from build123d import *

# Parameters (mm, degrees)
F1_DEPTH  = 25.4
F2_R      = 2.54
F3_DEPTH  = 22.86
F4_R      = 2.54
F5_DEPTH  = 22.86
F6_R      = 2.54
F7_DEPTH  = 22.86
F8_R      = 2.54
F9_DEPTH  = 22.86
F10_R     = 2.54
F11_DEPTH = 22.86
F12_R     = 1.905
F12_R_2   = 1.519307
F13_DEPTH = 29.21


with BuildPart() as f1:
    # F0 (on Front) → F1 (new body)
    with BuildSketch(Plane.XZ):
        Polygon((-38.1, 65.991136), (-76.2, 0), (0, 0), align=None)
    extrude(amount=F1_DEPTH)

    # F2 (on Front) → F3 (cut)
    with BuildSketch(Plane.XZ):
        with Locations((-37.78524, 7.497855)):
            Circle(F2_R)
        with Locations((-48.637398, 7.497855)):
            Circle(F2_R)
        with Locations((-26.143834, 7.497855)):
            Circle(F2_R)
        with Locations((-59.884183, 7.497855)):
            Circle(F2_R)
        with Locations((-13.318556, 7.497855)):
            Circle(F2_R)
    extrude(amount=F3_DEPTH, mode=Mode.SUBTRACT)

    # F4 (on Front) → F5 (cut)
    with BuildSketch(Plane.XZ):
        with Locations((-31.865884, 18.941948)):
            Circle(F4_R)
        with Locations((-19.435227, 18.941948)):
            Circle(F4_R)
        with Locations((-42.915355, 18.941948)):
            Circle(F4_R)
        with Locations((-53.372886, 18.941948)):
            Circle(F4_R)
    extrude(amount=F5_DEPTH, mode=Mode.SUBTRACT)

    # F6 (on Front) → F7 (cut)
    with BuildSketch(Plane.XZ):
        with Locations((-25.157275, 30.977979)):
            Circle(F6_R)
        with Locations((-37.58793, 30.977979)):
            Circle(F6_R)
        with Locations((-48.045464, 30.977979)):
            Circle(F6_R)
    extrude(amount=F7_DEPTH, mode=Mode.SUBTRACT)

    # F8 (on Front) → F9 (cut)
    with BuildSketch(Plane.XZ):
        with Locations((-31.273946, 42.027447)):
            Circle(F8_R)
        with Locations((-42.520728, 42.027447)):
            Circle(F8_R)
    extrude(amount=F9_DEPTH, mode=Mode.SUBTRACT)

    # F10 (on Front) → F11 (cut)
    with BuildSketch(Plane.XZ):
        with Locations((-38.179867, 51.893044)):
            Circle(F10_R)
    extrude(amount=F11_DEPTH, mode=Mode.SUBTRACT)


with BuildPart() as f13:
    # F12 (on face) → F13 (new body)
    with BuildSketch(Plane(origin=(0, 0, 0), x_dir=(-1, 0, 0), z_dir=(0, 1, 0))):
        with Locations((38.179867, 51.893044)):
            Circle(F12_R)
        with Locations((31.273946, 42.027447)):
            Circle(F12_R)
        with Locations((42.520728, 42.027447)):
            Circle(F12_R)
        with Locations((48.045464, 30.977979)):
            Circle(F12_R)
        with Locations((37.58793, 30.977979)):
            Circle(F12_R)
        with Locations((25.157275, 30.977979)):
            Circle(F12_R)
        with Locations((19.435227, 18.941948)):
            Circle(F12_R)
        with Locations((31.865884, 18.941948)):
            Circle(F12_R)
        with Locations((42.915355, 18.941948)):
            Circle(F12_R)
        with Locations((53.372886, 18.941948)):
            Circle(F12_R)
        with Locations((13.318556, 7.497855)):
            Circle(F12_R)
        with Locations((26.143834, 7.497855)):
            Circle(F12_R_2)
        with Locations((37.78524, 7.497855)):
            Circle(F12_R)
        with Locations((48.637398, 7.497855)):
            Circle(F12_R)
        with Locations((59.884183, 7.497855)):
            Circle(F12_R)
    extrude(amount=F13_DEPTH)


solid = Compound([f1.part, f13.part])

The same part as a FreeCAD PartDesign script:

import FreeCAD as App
import Part
import Sketcher

V = App.Vector
Q = App.Units.Quantity


def add_polygon(sketch, points):
    """Adds a closed chain of lines whose ends are joined by coincident constraints."""
    first, n = sketch.GeometryCount, len(points)
    for a, b in zip(points, points[1:] + points[:1]):
        sketch.addGeometry(Part.LineSegment(App.Vector(*a, 0), App.Vector(*b, 0)), False)
    for i in range(n):
        sketch.addConstraint(Sketcher.Constraint("Coincident", first + i, 2, first + (i + 1) % n, 1))

doc = App.newDocument("Part")
params = doc.addObject("Spreadsheet::Sheet", "Params")
for row, (alias, value) in enumerate([
    ("sketch1_width", "3 in"),
    ("sketch1_length", "3 in"),
    ("pad1_length", "1 in"),
    ("sketch2_diameter", "0.2 in"),
    ("pocket1_length", "0.9 in"),
    ("sketch3_diameter", "0.2 in"),
    ("pocket2_length", "0.9 in"),
    ("sketch4_diameter", "0.2 in"),
    ("pocket3_length", "0.9 in"),
    ("sketch5_diameter", "0.2 in"),
    ("pocket4_length", "0.9 in"),
    ("sketch6_diameter", "0.2 in"),
    ("pocket5_length", "0.9 in"),
    ("sketch7_diameter", "0.15 in"),
    ("pad2_length", "1.15 in"),
], start=1):
    params.set(f"A{row}", alias)
    params.set(f"B{row}", "=" + value)
    params.setAlias(f"B{row}", alias)

body = doc.addObject("PartDesign::Body", "Body")

# Sketch on XZ plane
sketch1 = doc.addObject("Sketcher::SketchObject", "Sketch")
body.addObject(sketch1)
sketch1.AttachmentSupport = (doc.XZ_Plane, [""])
sketch1.MapMode = "FlatFace"
add_polygon(sketch1, [(-38, 66), (-76, 0), (0, 0)])  # lines 0-2
sketch1.addConstraint([
    Sketcher.Constraint("Horizontal", 1),
    Sketcher.Constraint("Coincident", 1, 2, -1, 1),
    Sketcher.Constraint("Equal", 0, 2),
    Sketcher.Constraint("DistanceX", 1, 1, 1, 2, Q("3 in")),
    Sketcher.Constraint("Distance", 0, Q("3 in")),
])
sketch1.setExpression("Constraints[6]", "Params.sketch1_width")
sketch1.setExpression("Constraints[7]", "Params.sketch1_length")
pad1 = doc.addObject("PartDesign::Pad", "Pad")
body.addObject(pad1)
pad1.Profile = sketch1
pad1.setExpression("Length", "Params.pad1_length")

# Sketch on XZ plane
sketch2 = doc.addObject("Sketcher::SketchObject", "Sketch001")
body.addObject(sketch2)
sketch2.AttachmentSupport = (doc.XZ_Plane, [""])
sketch2.MapMode = "FlatFace"
sketch2.addGeometry([
    Part.Circle(V(-37.8, 7.5, 0), V(0, 0, 1), 2.5),  # 0
    Part.Circle(V(-48.6, 7.5, 0), V(0, 0, 1), 2.5),  # 1
    Part.Circle(V(-26.1, 7.5, 0), V(0, 0, 1), 2.5),  # 2
    Part.Circle(V(-59.9, 7.5, 0), V(0, 0, 1), 2.5),  # 3
    Part.Circle(V(-13.3, 7.5, 0), V(0, 0, 1), 2.5),  # 4
], False)
sketch2.addConstraint([
    Sketcher.Constraint("Equal", 0, 1),
    Sketcher.Constraint("Equal", 1, 2),
    Sketcher.Constraint("Equal", 2, 3),
    Sketcher.Constraint("Equal", 3, 4),
    Sketcher.Constraint("Horizontal", 0, 3, 1, 3),
    Sketcher.Constraint("Horizontal", 1, 3, 2, 3),
    Sketcher.Constraint("Horizontal", 2, 3, 3, 3),
    Sketcher.Constraint("Horizontal", 3, 3, 4, 3),
    Sketcher.Constraint("Diameter", 0, Q("0.2 in")),
    Sketcher.Constraint("DistanceX", 0, 3, -1, 1, 37.78524),
    Sketcher.Constraint("DistanceX", 3, 3, 2, 3, 33.740349),
    Sketcher.Constraint("DistanceX", 1, 3, 4, 3, 35.318842),
    Sketcher.Constraint("DistanceY", -1, 1, 0, 3, 7.497855),
    Sketcher.Constraint("DistanceX", 1, 3, -1, 1, 48.637398),
    Sketcher.Constraint("DistanceX", 2, 3, -1, 1, 26.143834),
])
sketch2.setExpression("Constraints[8]", "Params.sketch2_diameter")
pocket1 = doc.addObject("PartDesign::Pocket", "Pocket")
body.addObject(pocket1)
pocket1.Profile = sketch2
pocket1.setExpression("Length", "Params.pocket1_length")
pocket1.Reversed = True

# Sketch on XZ plane
sketch3 = doc.addObject("Sketcher::SketchObject", "Sketch002")
body.addObject(sketch3)
sketch3.AttachmentSupport = (doc.XZ_Plane, [""])
sketch3.MapMode = "FlatFace"
sketch3.addGeometry([
    Part.Circle(V(-31.9, 18.9, 0), V(0, 0, 1), 2.5),
    Part.Circle(V(-19.4, 18.9, 0), V(0, 0, 1), 2.5),
    Part.Circle(V(-42.9, 18.9, 0), V(0, 0, 1), 2.5),
    Part.Circle(V(-53.4, 18.9, 0), V(0, 0, 1), 2.5),
], False)
sketch3.addConstraint([
    Sketcher.Constraint("Equal", 0, 1),
    Sketcher.Constraint("Equal", 1, 2),
    Sketcher.Constraint("Equal", 2, 3),
    Sketcher.Constraint("Horizontal", 0, 3, 1, 3),
    Sketcher.Constraint("Horizontal", 1, 3, 2, 3),
    Sketcher.Constraint("Horizontal", 2, 3, 3, 3),
    Sketcher.Constraint("Diameter", 0, Q("0.2 in")),
    Sketcher.Constraint("DistanceX", 3, 3, 0, 3, 21.507002),
    Sketcher.Constraint("DistanceY", -1, 1, 0, 3, 18.941948),
    Sketcher.Constraint("DistanceX", 2, 3, 0, 3, 11.049471),
    Sketcher.Constraint("DistanceX", 3, 3, 1, 3, 33.937659),
    Sketcher.Constraint("DistanceX", 0, 3, -1, 1, 31.865884),
])
sketch3.setExpression("Constraints[6]", "Params.sketch3_diameter")
pocket2 = doc.addObject("PartDesign::Pocket", "Pocket001")
body.addObject(pocket2)
pocket2.Profile = sketch3
pocket2.setExpression("Length", "Params.pocket2_length")
pocket2.Reversed = True

# Sketch on XZ plane
sketch4 = doc.addObject("Sketcher::SketchObject", "Sketch003")
body.addObject(sketch4)
sketch4.AttachmentSupport = (doc.XZ_Plane, [""])
sketch4.MapMode = "FlatFace"
sketch4.addGeometry([
    Part.Circle(V(-25.2, 31, 0), V(0, 0, 1), 2.5),
    Part.Circle(V(-37.6, 31, 0), V(0, 0, 1), 2.5),
    Part.Circle(V(-48, 31, 0), V(0, 0, 1), 2.5),
], False)
sketch4.addConstraint([
    Sketcher.Constraint("Equal", 0, 1),
    Sketcher.Constraint("Equal", 1, 2),
    Sketcher.Constraint("Horizontal", 0, 3, 1, 3),
    Sketcher.Constraint("Horizontal", 1, 3, 2, 3),
    Sketcher.Constraint("Diameter", 0, Q("0.2 in")),
    Sketcher.Constraint("DistanceY", -1, 1, 0, 3, 30.977979),
    Sketcher.Constraint("DistanceX", 1, 3, -1, 1, 37.58793),
    Sketcher.Constraint("DistanceX", 2, 3, 0, 3, 22.888189),
    Sketcher.Constraint("DistanceX", 0, 3, -1, 1, 25.157275),
])
sketch4.setExpression("Constraints[4]", "Params.sketch4_diameter")
pocket3 = doc.addObject("PartDesign::Pocket", "Pocket002")
body.addObject(pocket3)
pocket3.Profile = sketch4
pocket3.setExpression("Length", "Params.pocket3_length")
pocket3.Reversed = True

# Sketch on XZ plane
sketch5 = doc.addObject("Sketcher::SketchObject", "Sketch004")
body.addObject(sketch5)
sketch5.AttachmentSupport = (doc.XZ_Plane, [""])
sketch5.MapMode = "FlatFace"
sketch5.addGeometry([
    Part.Circle(V(-31.3, 42, 0), V(0, 0, 1), 2.5),
    Part.Circle(V(-42.5, 42, 0), V(0, 0, 1), 2.5),
], False)
sketch5.addConstraint([
    Sketcher.Constraint("Equal", 0, 1),
    Sketcher.Constraint("Horizontal", 0, 3, 1, 3),
    Sketcher.Constraint("Diameter", 0, Q("0.2 in")),
    Sketcher.Constraint("DistanceX", 0, 3, -1, 1, 31.273946),
    Sketcher.Constraint("DistanceY", -1, 1, 0, 3, 42.027447),
    Sketcher.Constraint("DistanceX", 1, 3, -1, 1, 42.520728),
])
sketch5.setExpression("Constraints[2]", "Params.sketch5_diameter")
pocket4 = doc.addObject("PartDesign::Pocket", "Pocket003")
body.addObject(pocket4)
pocket4.Profile = sketch5
pocket4.setExpression("Length", "Params.pocket4_length")
pocket4.Reversed = True

# Sketch on XZ plane
sketch6 = doc.addObject("Sketcher::SketchObject", "Sketch005")
body.addObject(sketch6)
sketch6.AttachmentSupport = (doc.XZ_Plane, [""])
sketch6.MapMode = "FlatFace"
sketch6.addGeometry(Part.Circle(V(-38.2, 51.9, 0), V(0, 0, 1), 2.5), False)
sketch6.addConstraint([
    Sketcher.Constraint("Diameter", 0, Q("0.2 in")),
    Sketcher.Constraint("DistanceX", 0, 3, -1, 1, 38.179867),
    Sketcher.Constraint("DistanceY", -1, 1, 0, 3, 51.893044),
])
sketch6.setExpression("Constraints[0]", "Params.sketch6_diameter")
pocket5 = doc.addObject("PartDesign::Pocket", "Pocket004")
body.addObject(pocket5)
pocket5.Profile = sketch6
pocket5.setExpression("Length", "Params.pocket5_length")
pocket5.Reversed = True
body2 = doc.addObject("PartDesign::Body", "Body001")
body2.AllowCompound = True

# Sketch on XZ plane
sketch7 = doc.addObject("Sketcher::SketchObject", "Sketch006")
body2.addObject(sketch7)
sketch7.AttachmentSupport = (doc.getObject("XZ_Plane001"), [""])
sketch7.MapMode = "FlatFace"
sketch7.addGeometry([
    Part.Circle(V(-38.2, 51.9, 0), V(0, 0, 1), 1.9),  # 0
    Part.Circle(V(-31.3, 42, 0), V(0, 0, 1), 1.9),  # 1
    Part.Circle(V(-42.5, 42, 0), V(0, 0, 1), 1.9),  # 2
    Part.Circle(V(-48, 31, 0), V(0, 0, 1), 1.9),  # 3
    Part.Circle(V(-37.6, 31, 0), V(0, 0, 1), 1.9),  # 4
    Part.Circle(V(-25.2, 31, 0), V(0, 0, 1), 1.9),  # 5
    Part.Circle(V(-19.4, 18.9, 0), V(0, 0, 1), 1.9),  # 6
    Part.Circle(V(-31.9, 18.9, 0), V(0, 0, 1), 1.9),  # 7
    Part.Circle(V(-42.9, 18.9, 0), V(0, 0, 1), 1.9),  # 8
    Part.Circle(V(-53.4, 18.9, 0), V(0, 0, 1), 1.9),  # 9
    Part.Circle(V(-13.3, 7.5, 0), V(0, 0, 1), 1.9),  # 10
    Part.Circle(V(-26.1, 7.5, 0), V(0, 0, 1), 1.5),  # 11
    Part.Circle(V(-37.8, 7.5, 0), V(0, 0, 1), 1.9),  # 12
    Part.Circle(V(-48.6, 7.5, 0), V(0, 0, 1), 1.9),  # 13
    Part.Circle(V(-59.9, 7.5, 0), V(0, 0, 1), 1.9),  # 14
], False)
sketch7.addConstraint([
    Sketcher.Constraint("Equal", 0, 1),
    Sketcher.Constraint("Equal", 1, 2),
    Sketcher.Constraint("Equal", 2, 3),
    Sketcher.Constraint("Equal", 3, 4),
    Sketcher.Constraint("Equal", 4, 5),
    Sketcher.Constraint("Equal", 5, 6),
    Sketcher.Constraint("Equal", 6, 7),
    Sketcher.Constraint("Equal", 7, 8),
    Sketcher.Constraint("Equal", 8, 9),
    Sketcher.Constraint("Equal", 9, 10),
    Sketcher.Constraint("Equal", 10, 12),
    Sketcher.Constraint("Equal", 12, 13),
    Sketcher.Constraint("Equal", 13, 14),
    Sketcher.Constraint("Horizontal", 1, 3, 2, 3),
    Sketcher.Constraint("Horizontal", 3, 3, 4, 3),
    Sketcher.Constraint("Horizontal", 4, 3, 5, 3),
    Sketcher.Constraint("Horizontal", 6, 3, 7, 3),
    Sketcher.Constraint("Horizontal", 7, 3, 8, 3),
    Sketcher.Constraint("Horizontal", 8, 3, 9, 3),
    Sketcher.Constraint("Horizontal", 10, 3, 11, 3),
    Sketcher.Constraint("Horizontal", 11, 3, 12, 3),
    Sketcher.Constraint("Horizontal", 12, 3, 13, 3),
    Sketcher.Constraint("Horizontal", 13, 3, 14, 3),
    Sketcher.Constraint("Diameter", 0, Q("0.15 in")),
    Sketcher.Constraint("Diameter", 11, 3.038614),
    Sketcher.Constraint("DistanceX", 2, 3, 0, 3, Q("0.1709 in")),
    Sketcher.Constraint("DistanceY", 6, 3, 1, 3, 23.085499),
    Sketcher.Constraint("DistanceX", 2, 3, 6, 3, 23.085501),
    Sketcher.Constraint("DistanceX", 9, 3, 7, 3, 21.507002),
    Sketcher.Constraint("DistanceX", 8, 3, 10, 3, 29.596799),
    Sketcher.Constraint("DistanceY", -1, 1, 3, 3, 30.977979),
    Sketcher.Constraint("DistanceX", 4, 3, -1, 1, 37.58793),
    Sketcher.Constraint("DistanceY", -1, 1, 6, 3, 18.941948),
    Sketcher.Constraint("DistanceX", 12, 3, -1, 1, 37.78524),
    Sketcher.Constraint("DistanceX", 0, 3, 1, 3, 6.905921),
    Sketcher.Constraint("DistanceX", 3, 3, 1, 3, 16.771518),
    Sketcher.Constraint("DistanceX", 1, 3, 5, 3, 6.116671),
    Sketcher.Constraint("DistanceX", 7, 3, 5, 3, 6.708609),
    Sketcher.Constraint("DistanceX", 8, 3, 7, 3, 11.049471),
    Sketcher.Constraint("DistanceX", 7, 3, 11, 3, 5.72205),
    Sketcher.Constraint("DistanceX", 9, 3, 13, 3, 4.735488),
    Sketcher.Constraint("DistanceX", 14, 3, 8, 3, 16.968828),
    Sketcher.Constraint("DistanceX", 0, 3, -1, 1, 38.179867),
    Sketcher.Constraint("DistanceY", -1, 1, 0, 3, 51.893044),
    Sketcher.Constraint("DistanceY", -1, 1, 10, 3, 7.497855),
])
sketch7.setExpression("Constraints[23]", "Params.sketch7_diameter")
pad2 = doc.addObject("PartDesign::Pad", "Pad001")
body2.addObject(pad2)
pad2.Profile = sketch7
pad2.setExpression("Length", "Params.pad2_length")
pad2.Reversed = True

doc.recompute()
